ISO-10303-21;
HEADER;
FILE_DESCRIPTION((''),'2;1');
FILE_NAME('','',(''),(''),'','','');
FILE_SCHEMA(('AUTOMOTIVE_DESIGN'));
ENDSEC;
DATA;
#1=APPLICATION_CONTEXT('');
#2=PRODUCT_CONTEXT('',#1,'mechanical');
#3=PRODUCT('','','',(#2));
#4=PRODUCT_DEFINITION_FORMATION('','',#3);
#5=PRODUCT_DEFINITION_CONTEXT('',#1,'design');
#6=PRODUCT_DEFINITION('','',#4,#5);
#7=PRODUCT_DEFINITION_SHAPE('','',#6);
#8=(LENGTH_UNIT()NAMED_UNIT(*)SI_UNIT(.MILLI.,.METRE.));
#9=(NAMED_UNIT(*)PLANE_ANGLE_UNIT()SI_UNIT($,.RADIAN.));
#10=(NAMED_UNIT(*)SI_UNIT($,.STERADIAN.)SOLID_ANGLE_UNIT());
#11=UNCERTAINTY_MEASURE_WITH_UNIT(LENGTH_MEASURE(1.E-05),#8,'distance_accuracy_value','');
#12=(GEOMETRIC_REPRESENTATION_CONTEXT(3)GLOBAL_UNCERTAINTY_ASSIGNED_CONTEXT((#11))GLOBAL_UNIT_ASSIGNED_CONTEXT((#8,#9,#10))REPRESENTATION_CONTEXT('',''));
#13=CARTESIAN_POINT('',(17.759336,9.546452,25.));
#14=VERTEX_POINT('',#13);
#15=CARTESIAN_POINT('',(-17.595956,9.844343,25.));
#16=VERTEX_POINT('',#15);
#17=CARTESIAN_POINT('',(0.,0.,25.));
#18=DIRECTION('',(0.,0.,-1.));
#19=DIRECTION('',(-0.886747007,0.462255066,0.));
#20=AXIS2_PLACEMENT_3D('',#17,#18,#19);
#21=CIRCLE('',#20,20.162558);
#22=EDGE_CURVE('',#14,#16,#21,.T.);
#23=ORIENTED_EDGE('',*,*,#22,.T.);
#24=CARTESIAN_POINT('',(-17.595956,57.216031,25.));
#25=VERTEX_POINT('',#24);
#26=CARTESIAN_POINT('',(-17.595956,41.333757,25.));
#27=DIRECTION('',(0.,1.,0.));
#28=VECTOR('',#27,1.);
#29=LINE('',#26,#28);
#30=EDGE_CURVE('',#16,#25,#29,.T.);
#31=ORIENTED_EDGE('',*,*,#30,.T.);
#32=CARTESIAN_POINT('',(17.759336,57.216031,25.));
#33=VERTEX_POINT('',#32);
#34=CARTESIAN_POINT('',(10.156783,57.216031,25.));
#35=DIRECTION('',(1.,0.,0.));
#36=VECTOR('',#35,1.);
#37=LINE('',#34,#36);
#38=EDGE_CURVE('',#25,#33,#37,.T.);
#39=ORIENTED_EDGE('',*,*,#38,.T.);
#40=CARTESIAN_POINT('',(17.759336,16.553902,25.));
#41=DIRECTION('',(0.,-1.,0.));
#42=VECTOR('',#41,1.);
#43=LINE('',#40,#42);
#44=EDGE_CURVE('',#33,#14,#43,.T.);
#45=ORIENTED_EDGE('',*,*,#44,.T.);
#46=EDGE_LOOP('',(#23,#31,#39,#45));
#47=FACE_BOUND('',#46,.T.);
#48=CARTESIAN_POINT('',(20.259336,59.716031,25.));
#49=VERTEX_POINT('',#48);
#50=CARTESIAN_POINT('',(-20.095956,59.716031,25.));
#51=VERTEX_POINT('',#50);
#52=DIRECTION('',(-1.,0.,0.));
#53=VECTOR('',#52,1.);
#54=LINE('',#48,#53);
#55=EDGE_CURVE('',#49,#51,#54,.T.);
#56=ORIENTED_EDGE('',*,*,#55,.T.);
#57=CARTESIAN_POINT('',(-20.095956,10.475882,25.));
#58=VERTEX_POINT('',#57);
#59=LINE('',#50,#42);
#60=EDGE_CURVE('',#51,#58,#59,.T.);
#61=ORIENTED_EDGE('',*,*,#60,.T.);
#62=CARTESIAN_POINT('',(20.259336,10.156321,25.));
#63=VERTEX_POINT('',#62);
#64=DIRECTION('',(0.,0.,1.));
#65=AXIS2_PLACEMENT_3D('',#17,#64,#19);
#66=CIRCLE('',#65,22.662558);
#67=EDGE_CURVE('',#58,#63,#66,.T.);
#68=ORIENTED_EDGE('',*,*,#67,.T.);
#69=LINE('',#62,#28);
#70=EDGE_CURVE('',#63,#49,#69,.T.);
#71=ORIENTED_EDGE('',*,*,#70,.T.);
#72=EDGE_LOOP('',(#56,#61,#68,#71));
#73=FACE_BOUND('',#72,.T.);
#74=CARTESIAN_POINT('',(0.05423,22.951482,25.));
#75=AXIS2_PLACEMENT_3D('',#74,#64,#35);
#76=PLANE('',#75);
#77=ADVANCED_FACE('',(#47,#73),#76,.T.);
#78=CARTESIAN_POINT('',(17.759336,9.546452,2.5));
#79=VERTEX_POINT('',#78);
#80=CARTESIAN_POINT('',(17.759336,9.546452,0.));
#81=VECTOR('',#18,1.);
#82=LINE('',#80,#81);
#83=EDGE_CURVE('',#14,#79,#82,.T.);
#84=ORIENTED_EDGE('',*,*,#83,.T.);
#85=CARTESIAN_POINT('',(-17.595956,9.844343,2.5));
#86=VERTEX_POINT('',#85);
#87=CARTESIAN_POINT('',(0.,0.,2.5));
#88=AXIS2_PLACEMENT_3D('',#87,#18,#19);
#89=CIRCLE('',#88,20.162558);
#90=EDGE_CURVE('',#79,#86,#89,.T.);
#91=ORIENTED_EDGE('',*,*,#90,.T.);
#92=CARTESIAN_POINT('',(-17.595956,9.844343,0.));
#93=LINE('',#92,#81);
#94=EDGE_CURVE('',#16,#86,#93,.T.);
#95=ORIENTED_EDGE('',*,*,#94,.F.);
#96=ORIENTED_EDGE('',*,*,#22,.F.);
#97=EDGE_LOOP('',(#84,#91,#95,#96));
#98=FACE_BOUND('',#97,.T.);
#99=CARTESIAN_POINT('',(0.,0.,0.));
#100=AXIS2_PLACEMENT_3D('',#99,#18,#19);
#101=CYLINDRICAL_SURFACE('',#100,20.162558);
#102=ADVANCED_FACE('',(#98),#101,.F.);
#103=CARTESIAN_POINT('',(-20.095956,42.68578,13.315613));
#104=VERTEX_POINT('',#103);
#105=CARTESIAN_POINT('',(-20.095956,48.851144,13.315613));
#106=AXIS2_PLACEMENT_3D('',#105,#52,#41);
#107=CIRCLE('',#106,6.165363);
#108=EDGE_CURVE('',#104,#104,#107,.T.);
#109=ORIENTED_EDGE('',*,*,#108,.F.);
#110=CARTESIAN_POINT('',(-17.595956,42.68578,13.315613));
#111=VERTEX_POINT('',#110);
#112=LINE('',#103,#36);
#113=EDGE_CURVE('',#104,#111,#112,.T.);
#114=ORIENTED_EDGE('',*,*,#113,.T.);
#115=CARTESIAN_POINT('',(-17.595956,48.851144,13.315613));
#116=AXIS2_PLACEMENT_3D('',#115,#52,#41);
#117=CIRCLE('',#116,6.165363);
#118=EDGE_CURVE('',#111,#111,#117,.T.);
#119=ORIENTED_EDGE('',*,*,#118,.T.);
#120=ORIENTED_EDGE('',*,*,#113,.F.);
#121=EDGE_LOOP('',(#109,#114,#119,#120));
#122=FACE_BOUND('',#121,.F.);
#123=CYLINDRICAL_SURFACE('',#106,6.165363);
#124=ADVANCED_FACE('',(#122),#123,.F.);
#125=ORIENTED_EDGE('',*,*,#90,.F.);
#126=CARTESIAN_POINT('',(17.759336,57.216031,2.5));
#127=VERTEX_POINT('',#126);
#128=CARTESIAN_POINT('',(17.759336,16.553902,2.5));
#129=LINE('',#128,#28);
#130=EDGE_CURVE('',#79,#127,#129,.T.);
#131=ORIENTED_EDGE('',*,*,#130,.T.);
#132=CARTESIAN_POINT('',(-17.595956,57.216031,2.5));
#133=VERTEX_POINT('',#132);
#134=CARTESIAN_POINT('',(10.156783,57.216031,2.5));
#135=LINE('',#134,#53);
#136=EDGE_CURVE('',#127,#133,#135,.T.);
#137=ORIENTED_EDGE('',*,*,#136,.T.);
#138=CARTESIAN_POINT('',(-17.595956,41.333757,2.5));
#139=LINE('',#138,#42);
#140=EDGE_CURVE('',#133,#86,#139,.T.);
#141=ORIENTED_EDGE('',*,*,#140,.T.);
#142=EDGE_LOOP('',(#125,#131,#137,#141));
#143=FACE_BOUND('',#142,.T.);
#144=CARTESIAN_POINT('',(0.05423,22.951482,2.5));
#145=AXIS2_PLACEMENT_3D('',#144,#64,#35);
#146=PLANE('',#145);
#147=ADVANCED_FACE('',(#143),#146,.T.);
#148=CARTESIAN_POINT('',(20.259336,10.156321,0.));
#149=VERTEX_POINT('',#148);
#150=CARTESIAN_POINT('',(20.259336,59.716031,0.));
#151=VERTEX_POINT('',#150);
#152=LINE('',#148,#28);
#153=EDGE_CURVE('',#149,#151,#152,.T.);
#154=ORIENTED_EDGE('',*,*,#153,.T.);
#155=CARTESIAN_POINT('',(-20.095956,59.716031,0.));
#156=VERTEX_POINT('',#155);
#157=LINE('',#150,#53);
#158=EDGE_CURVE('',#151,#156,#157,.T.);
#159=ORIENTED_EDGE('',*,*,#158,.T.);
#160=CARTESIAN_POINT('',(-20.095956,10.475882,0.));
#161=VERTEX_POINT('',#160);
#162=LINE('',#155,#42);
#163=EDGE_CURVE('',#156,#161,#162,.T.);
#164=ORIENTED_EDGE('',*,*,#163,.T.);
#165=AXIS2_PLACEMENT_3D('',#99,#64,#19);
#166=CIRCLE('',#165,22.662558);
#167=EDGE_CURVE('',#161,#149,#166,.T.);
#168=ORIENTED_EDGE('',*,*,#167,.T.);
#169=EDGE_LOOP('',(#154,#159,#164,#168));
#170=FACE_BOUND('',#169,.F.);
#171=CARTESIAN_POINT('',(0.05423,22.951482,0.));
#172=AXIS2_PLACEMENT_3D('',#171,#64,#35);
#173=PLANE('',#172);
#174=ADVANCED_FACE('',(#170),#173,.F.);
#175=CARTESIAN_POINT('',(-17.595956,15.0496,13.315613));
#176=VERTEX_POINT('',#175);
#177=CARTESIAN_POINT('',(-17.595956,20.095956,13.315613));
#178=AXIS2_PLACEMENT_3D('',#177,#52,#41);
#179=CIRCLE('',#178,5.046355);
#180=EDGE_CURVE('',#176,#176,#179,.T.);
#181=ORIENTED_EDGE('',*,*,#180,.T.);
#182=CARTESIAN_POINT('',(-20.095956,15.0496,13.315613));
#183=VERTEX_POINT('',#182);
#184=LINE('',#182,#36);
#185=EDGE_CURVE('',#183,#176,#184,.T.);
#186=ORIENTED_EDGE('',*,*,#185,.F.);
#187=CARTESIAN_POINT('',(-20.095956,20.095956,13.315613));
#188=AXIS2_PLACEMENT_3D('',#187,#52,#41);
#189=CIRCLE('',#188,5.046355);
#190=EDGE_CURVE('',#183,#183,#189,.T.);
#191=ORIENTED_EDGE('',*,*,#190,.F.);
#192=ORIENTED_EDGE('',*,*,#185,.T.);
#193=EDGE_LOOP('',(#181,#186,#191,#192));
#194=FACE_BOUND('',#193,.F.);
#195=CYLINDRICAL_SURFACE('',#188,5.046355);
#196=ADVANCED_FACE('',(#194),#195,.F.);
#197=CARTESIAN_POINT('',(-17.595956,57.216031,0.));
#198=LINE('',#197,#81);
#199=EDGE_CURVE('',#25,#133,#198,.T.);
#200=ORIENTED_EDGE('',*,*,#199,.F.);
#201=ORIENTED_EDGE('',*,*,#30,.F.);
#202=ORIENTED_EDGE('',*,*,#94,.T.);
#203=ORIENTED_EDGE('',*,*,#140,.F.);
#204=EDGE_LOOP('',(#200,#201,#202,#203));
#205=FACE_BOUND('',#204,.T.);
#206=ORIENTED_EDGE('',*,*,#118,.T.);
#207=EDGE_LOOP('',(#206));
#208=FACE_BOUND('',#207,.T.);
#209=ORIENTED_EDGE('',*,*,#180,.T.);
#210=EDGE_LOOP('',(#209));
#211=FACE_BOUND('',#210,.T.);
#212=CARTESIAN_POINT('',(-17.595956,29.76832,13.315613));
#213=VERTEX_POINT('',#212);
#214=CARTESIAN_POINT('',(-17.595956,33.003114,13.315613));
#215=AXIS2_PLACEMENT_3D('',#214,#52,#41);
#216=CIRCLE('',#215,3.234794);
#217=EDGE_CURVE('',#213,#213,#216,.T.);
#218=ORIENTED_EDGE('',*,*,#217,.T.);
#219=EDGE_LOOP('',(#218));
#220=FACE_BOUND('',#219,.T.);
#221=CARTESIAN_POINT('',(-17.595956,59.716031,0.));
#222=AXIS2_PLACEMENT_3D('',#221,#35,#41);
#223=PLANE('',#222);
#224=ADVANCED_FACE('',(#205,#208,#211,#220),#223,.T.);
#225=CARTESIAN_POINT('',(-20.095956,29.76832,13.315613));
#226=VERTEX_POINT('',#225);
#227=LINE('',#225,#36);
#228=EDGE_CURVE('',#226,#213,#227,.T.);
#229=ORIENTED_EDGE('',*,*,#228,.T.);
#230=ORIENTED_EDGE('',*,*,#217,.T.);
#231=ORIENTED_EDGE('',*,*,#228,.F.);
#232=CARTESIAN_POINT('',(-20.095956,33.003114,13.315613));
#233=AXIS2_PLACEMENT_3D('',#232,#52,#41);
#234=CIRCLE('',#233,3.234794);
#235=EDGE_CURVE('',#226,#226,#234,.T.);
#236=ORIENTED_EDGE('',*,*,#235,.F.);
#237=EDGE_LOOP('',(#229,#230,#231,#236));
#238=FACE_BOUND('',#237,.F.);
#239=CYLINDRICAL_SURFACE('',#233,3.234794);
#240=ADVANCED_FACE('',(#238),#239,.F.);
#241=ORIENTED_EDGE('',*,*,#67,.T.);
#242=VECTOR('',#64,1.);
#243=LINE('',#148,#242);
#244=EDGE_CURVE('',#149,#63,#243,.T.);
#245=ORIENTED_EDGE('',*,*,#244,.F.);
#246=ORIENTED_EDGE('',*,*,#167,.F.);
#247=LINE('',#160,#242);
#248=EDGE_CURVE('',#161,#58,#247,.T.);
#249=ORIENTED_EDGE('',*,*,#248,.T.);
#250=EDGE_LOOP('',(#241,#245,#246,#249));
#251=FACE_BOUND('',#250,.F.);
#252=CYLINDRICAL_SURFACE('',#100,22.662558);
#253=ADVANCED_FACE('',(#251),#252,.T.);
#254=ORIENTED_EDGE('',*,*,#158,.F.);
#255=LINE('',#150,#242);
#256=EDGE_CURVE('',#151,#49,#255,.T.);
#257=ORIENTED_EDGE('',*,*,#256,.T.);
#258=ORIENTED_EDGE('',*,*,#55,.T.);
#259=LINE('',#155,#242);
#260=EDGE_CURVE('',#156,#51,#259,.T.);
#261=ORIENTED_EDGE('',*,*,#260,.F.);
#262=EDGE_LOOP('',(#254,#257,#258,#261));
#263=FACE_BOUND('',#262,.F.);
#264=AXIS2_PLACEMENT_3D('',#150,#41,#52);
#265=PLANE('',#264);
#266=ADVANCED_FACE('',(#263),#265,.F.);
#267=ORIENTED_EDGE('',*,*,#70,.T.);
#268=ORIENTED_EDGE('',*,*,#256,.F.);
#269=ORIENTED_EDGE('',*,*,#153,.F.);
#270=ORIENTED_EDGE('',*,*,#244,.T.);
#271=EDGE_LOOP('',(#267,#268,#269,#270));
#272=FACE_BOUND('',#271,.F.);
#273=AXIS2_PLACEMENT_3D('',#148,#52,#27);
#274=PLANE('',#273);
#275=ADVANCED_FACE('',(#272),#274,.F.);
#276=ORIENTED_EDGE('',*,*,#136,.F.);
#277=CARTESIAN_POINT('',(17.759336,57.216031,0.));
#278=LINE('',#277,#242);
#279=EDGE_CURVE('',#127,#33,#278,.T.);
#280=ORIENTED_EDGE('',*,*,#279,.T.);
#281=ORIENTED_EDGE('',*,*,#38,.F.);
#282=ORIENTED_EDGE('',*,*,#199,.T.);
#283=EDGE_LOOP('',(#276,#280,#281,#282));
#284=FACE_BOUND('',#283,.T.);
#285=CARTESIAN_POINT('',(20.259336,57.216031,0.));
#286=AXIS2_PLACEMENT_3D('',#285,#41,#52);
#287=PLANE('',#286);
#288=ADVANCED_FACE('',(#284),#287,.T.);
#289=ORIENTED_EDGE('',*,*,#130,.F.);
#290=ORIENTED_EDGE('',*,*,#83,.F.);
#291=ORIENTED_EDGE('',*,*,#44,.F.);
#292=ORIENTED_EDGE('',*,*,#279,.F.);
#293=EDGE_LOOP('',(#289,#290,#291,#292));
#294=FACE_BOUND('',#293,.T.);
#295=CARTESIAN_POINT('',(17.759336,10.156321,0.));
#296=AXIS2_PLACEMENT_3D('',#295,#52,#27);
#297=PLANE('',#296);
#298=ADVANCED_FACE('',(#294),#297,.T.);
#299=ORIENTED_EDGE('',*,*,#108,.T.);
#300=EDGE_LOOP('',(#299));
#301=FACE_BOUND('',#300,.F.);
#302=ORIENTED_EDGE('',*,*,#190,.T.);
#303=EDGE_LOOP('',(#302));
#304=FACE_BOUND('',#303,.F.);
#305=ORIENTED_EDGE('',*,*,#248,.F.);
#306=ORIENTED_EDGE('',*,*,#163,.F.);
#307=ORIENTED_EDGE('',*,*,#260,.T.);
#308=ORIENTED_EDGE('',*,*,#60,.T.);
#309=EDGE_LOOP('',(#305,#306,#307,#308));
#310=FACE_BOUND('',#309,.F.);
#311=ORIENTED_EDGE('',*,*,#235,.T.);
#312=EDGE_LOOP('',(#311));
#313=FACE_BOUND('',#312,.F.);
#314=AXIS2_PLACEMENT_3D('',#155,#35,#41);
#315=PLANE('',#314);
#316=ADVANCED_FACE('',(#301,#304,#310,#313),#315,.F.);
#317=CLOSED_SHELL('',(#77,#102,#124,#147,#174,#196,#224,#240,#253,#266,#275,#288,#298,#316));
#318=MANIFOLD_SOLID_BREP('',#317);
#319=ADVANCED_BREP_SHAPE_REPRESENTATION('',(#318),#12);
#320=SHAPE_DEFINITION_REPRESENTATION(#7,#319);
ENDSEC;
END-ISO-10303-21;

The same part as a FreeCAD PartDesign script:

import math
import FreeCAD as App
import Part
import Sketcher

V = App.Vector


def faces_at(feature, points):
    """Names of the faces that lie closest to the given points."""
    faces = feature.Shape.Faces
    near = lambda p: min(range(len(faces)), key=lambda i: faces[i].distToShape(Part.Vertex(*p))[0])
    return sorted({f"Face{near(p) + 1}" for p in points})

doc = App.newDocument("Part")
body = doc.addObject("PartDesign::Body", "Body")

# Sketch on XY plane
sketch1 = body.newObject("Sketcher::SketchObject", "Sketch")
sketch1.AttachmentSupport = (doc.getObject("XY_Plane"), [""])
sketch1.MapMode = "FlatFace"
sketch1.addGeometry(Part.LineSegment(V(-20, 60, 0), V(-20, 10, 0)), False)
sketch1.addGeometry(Part.ArcOfCircle(Part.Circle(V(0, 0, 0), V(0, 0, 1), 23), math.radians(152), math.radians(387)), False)
sketch1.addGeometry(Part.LineSegment(V(20, 10, 0), V(20, 60, 0)), False)
sketch1.addGeometry(Part.LineSegment(V(20, 60, 0), V(-20, 60, 0)), False)
sketch1.addConstraint(Sketcher.Constraint("Coincident", 0, 2, 1, 1))
sketch1.addConstraint(Sketcher.Constraint("Coincident", 1, 2, 2, 1))
sketch1.addConstraint(Sketcher.Constraint("Coincident", 2, 2, 3, 1))
sketch1.addConstraint(Sketcher.Constraint("Coincident", 3, 2, 0, 1))
sketch1.addConstraint(Sketcher.Constraint("Vertical", 0))
sketch1.addConstraint(Sketcher.Constraint("Vertical", 2))
sketch1.addConstraint(Sketcher.Constraint("Horizontal", 3))
sketch1.addConstraint(Sketcher.Constraint("Coincident", 1, 3, -1, 1))
sketch1.addConstraint(Sketcher.Constraint("Radius", 1, 22.662558))
sketch1.addConstraint(Sketcher.Constraint("DistanceX", 3, 2, 3, 1, 40.355291))
sketch1.addConstraint(Sketcher.Constraint("DistanceY", 0, 2, 0, 1, 49.240149))
sketch1.addConstraint(Sketcher.Constraint("DistanceY", 2, 1, 2, 2, 49.55971))
pad1 = body.newObject("PartDesign::Pad", "Pad")
pad1.Profile = sketch1
pad1.Length = 25
doc.recompute()

thickness = body.newObject("PartDesign::Thickness", "Thickness")
thickness.Base = (pad1, faces_at(pad1, [(0, 18.527, 25)]))
thickness.Value = 2.5
thickness.Reversed = True
thickness.Join = "Intersection"

# Sketch on YZ plane
sketch2 = body.newObject("Sketcher::SketchObject", "Sketch001")
sketch2.AttachmentSupport = (doc.getObject("YZ_Plane"), [""])
sketch2.MapMode = "FlatFace"
sketch2.AttachmentOffset = App.Placement(V(0, 0, -20.095956), App.Rotation())
sketch2.addGeometry(Part.Circle(V(48.9, 13.3, 0), V(0, 0, 1), 6.2), False)
sketch2.addGeometry(Part.Circle(V(33, 13.3, 0), V(0, 0, 1), 3.2), False)
sketch2.addGeometry(Part.Circle(V(20.1, 13.3, 0), V(0, 0, 1), 5), False)
sketch2.addConstraint(Sketcher.Constraint("Horizontal", 0, 3, 1, 3))
sketch2.addConstraint(Sketcher.Constraint("Horizontal", 1, 3, 2, 3))
sketch2.addConstraint(Sketcher.Constraint("Diameter", 1, 6.469589))
sketch2.addConstraint(Sketcher.Constraint("Diameter", 2, 10.092711))
sketch2.addConstraint(Sketcher.Constraint("Diameter", 0, 12.330726))
sketch2.addConstraint(Sketcher.Constraint("DistanceX", 1, 3, 0, 3, 15.848029))
sketch2.addConstraint(Sketcher.Constraint("DistanceX", 2, 3, 1, 3, 12.907159))
sketch2.addConstraint(Sketcher.Constraint("DistanceX", -1, 1, 0, 3, 48.851144))
sketch2.addConstraint(Sketcher.Constraint("DistanceY", -1, 1, 0, 3, 13.315613))
pocket1 = body.newObject("PartDesign::Pocket", "Pocket")
pocket1.Profile = sketch2
pocket1.Length = 25
pocket1.Reversed = True

doc.recompute()
